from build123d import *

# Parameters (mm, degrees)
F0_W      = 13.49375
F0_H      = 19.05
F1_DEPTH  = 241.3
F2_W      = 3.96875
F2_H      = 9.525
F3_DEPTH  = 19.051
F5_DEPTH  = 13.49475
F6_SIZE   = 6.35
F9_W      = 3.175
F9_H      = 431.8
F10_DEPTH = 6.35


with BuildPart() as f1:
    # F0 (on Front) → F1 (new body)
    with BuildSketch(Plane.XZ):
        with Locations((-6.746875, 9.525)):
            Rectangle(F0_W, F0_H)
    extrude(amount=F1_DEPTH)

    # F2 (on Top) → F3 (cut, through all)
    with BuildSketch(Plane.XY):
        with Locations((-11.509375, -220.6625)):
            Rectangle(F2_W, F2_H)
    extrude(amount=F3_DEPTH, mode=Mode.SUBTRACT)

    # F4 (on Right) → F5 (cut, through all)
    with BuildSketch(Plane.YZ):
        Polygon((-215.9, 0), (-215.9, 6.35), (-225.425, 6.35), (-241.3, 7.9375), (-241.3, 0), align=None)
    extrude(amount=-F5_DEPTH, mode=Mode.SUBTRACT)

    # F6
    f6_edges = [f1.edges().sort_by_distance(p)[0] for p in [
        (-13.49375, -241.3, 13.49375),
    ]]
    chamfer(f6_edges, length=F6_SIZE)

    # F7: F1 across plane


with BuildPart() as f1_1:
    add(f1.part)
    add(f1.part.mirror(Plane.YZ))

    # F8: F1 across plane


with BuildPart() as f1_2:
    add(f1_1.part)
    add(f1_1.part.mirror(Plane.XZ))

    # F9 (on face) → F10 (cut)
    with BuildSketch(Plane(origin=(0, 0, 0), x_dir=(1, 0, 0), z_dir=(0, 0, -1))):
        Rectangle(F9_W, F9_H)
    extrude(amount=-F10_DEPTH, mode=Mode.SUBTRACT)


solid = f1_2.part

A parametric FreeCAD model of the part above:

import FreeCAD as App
import Part
import Sketcher
Q = App.Units.Quantity


def edges_at(feature, points):
    """Names of the edges that pass closest to the given points."""
    edges = feature.Shape.Edges
    near = lambda p: min(range(len(edges)), key=lambda i: edges[i].distToShape(Part.Vertex(*p))[0])
    return sorted({f"Edge{near(p) + 1}" for p in points})


def add_polygon(sketch, points):
    """Adds a closed chain of lines whose ends are joined by coincident constraints."""
    first, n = sketch.GeometryCount, len(points)
    for a, b in zip(points, points[1:] + points[:1]):
        sketch.addGeometry(Part.LineSegment(App.Vector(*a, 0), App.Vector(*b, 0)), False)
    for i in range(n):
        sketch.addConstraint(Sketcher.Constraint("Coincident", first + i, 2, first + (i + 1) % n, 1))

doc = App.newDocument("Part")
body = doc.addObject("PartDesign::Body", "Body")

# Sketch on XZ plane
sketch1 = doc.addObject("Sketcher::SketchObject", "Sketch")
body.addObject(sketch1)
sketch1.AttachmentSupport = (doc.XZ_Plane, [""])
sketch1.MapMode = "FlatFace"
add_polygon(sketch1, [(-13, 19), (-13, 0), (0, 0), (0, 19)])  # lines 0-3
sketch1.addConstraint(Sketcher.Constraint("Vertical", 0))
sketch1.addConstraint(Sketcher.Constraint("Horizontal", 1))
sketch1.addConstraint(Sketcher.Constraint("Vertical", 2))
sketch1.addConstraint(Sketcher.Constraint("Horizontal", 3))
sketch1.addConstraint(Sketcher.Constraint("Coincident", 1, 2, -1, 1))
sketch1.addConstraint(Sketcher.Constraint("DistanceY", 0, 2, 0, 1, Q("0.75 in")))
sketch1.addConstraint(Sketcher.Constraint("DistanceX", 1, 1, 1, 2, Q("0.53125 in")))
pad1 = doc.addObject("PartDesign::Pad", "Pad")
body.addObject(pad1)
pad1.Profile = sketch1
pad1.Length = Q("9.5 in")

# Sketch on XY plane
sketch2 = doc.addObject("Sketcher::SketchObject", "Sketch001")
body.addObject(sketch2)
sketch2.AttachmentSupport = (doc.XY_Plane, [""])
sketch2.MapMode = "FlatFace"
add_polygon(sketch2, [(-13.5, -215.9), (-13.5, -225.4), (-9.5, -225.4), (-9.5, -215.9)])  # lines 0-3
sketch2.addConstraint(Sketcher.Constraint("Vertical", 0))
sketch2.addConstraint(Sketcher.Constraint("Horizontal", 1))
sketch2.addConstraint(Sketcher.Constraint("Vertical", 2))
sketch2.addConstraint(Sketcher.Constraint("Horizontal", 3))
sketch2.addConstraint(Sketcher.Constraint("DistanceY", 2, 2, -1, 1, Q("8.5 in")))
sketch2.addConstraint(Sketcher.Constraint("DistanceX", 1, 1, 1, 2, Q("0.15625 in")))
sketch2.addConstraint(Sketcher.Constraint("DistanceY", 0, 2, 0, 1, Q("0.375 in")))
sketch2.addConstraint(Sketcher.Constraint("DistanceX", 0, 2, -1, 1, Q("0.53125 in")))
pocket1 = doc.addObject("PartDesign::Pocket", "Pocket")
body.addObject(pocket1)
pocket1.Profile = sketch2
pocket1.Type = "ThroughAll"
pocket1.Reversed = True

# Sketch on YZ plane
sketch3 = doc.addObject("Sketcher::SketchObject", "Sketch002")
body.addObject(sketch3)
sketch3.AttachmentSupport = (doc.YZ_Plane, [""])
sketch3.MapMode = "FlatFace"
add_polygon(sketch3, [(-216, 0), (-216, 6), (-225, 6), (-241, 8), (-241, 0)])  # lines 0-4
sketch3.addConstraint(Sketcher.Constraint("Vertical", 0))
sketch3.addConstraint(Sketcher.Constraint("Horizontal", 1))
sketch3.addConstraint(Sketcher.Constraint("Vertical", 3))
sketch3.addConstraint(Sketcher.Constraint("Horizontal", 4))
sketch3.addConstraint(Sketcher.Constraint("PointOnObject", 3, 2, -1))
sketch3.addConstraint(Sketcher.Constraint("DistanceX", 4, 1, 4, 2, Q("1 in")))
sketch3.addConstraint(Sketcher.Constraint("DistanceY", 0, 1, 0, 2, Q("0.25 in")))
sketch3.addConstraint(Sketcher.Constraint("DistanceX", 0, 2, -1, 1, Q("8.5 in")))
sketch3.addConstraint(Sketcher.Constraint("DistanceX", 1, 2, 1, 1, Q("0.375 in")))
sketch3.addConstraint(Sketcher.Constraint("DistanceY", 3, 2, 3, 1, Q("0.3125 in")))
pocket2 = doc.addObject("PartDesign::Pocket", "Pocket001")
body.addObject(pocket2)
pocket2.Profile = sketch3
pocket2.Type = "ThroughAll"
doc.recompute()

chamfer = doc.addObject("PartDesign::Chamfer", "Chamfer")
body.addObject(chamfer)
chamfer.Base = (pocket2, edges_at(pocket2, [(-13.494, -241.3, 13.494)]))
chamfer.Size = Q("0.25 in")
body2 = doc.addObject("PartDesign::Body", "Body001")
doc.recompute()

body2.BaseFeature = body
doc.recompute()

mirroring = doc.addObject("Part::Mirroring", "Mirroring")
mirroring.Source = body
mirroring.Base = App.Vector(0, 0, 0)
mirroring.Normal = App.Vector(1, 0, 0)
body3 = doc.addObject("PartDesign::Body", "Body002")
body3.BaseFeature = mirroring
boolean = doc.addObject("PartDesign::Boolean", "Boolean")
body2.addObject(boolean)
boolean.Type = "Fuse"
boolean.addObjects([body3])
doc.recompute()
body4 = doc.addObject("PartDesign::Body", "Body003")
doc.recompute()

body4.BaseFeature = body2
doc.recompute()

mirroring2 = doc.addObject("Part::Mirroring", "Mirroring001")
mirroring2.Source = body2
mirroring2.Base = App.Vector(0, 0, 0)
mirroring2.Normal = App.Vector(0, -1, 0)
body5 = doc.addObject("PartDesign::Body", "Body004")
body5.BaseFeature = mirroring2
boolean2 = doc.addObject("PartDesign::Boolean", "Boolean001")
body4.addObject(boolean2)
boolean2.Type = "Fuse"
boolean2.addObjects([body5])
doc.recompute()

# Sketch on XY plane
sketch4 = doc.addObject("Sketcher::SketchObject", "Sketch003")
body4.addObject(sketch4)
sketch4.AttachmentSupport = (doc.getObject("XY_Plane003"), [""])
sketch4.MapMode = "FlatFace"
add_polygon(sketch4, [(-1.6, -215.9), (-1.6, 215.9), (1.6, 215.9), (1.6, -215.9)])  # lines 0-3
sketch4.addConstraint(Sketcher.Constraint("Vertical", 0))
sketch4.addConstraint(Sketcher.Constraint("Horizontal", 1))
sketch4.addConstraint(Sketcher.Constraint("Vertical", 2))
sketch4.addConstraint(Sketcher.Constraint("Horizontal", 3))
sketch4.addConstraint(Sketcher.Constraint("Symmetric", 0, 2, 2, 2, -1, 1))
sketch4.addConstraint(Sketcher.Constraint("DistanceY", 0, 1, 0, 2, Q("17 in")))
sketch4.addConstraint(Sketcher.Constraint("DistanceX", 1, 1, 1, 2, Q("0.125 in")))
pocket3 = doc.addObject("PartDesign::Pocket", "Pocket002")
body4.addObject(pocket3)
pocket3.Profile = sketch4
pocket3.Length = Q("0.25 in")
pocket3.Reversed = True
mirroring.Visibility = False
mirroring2.Visibility = False

doc.recompute()
